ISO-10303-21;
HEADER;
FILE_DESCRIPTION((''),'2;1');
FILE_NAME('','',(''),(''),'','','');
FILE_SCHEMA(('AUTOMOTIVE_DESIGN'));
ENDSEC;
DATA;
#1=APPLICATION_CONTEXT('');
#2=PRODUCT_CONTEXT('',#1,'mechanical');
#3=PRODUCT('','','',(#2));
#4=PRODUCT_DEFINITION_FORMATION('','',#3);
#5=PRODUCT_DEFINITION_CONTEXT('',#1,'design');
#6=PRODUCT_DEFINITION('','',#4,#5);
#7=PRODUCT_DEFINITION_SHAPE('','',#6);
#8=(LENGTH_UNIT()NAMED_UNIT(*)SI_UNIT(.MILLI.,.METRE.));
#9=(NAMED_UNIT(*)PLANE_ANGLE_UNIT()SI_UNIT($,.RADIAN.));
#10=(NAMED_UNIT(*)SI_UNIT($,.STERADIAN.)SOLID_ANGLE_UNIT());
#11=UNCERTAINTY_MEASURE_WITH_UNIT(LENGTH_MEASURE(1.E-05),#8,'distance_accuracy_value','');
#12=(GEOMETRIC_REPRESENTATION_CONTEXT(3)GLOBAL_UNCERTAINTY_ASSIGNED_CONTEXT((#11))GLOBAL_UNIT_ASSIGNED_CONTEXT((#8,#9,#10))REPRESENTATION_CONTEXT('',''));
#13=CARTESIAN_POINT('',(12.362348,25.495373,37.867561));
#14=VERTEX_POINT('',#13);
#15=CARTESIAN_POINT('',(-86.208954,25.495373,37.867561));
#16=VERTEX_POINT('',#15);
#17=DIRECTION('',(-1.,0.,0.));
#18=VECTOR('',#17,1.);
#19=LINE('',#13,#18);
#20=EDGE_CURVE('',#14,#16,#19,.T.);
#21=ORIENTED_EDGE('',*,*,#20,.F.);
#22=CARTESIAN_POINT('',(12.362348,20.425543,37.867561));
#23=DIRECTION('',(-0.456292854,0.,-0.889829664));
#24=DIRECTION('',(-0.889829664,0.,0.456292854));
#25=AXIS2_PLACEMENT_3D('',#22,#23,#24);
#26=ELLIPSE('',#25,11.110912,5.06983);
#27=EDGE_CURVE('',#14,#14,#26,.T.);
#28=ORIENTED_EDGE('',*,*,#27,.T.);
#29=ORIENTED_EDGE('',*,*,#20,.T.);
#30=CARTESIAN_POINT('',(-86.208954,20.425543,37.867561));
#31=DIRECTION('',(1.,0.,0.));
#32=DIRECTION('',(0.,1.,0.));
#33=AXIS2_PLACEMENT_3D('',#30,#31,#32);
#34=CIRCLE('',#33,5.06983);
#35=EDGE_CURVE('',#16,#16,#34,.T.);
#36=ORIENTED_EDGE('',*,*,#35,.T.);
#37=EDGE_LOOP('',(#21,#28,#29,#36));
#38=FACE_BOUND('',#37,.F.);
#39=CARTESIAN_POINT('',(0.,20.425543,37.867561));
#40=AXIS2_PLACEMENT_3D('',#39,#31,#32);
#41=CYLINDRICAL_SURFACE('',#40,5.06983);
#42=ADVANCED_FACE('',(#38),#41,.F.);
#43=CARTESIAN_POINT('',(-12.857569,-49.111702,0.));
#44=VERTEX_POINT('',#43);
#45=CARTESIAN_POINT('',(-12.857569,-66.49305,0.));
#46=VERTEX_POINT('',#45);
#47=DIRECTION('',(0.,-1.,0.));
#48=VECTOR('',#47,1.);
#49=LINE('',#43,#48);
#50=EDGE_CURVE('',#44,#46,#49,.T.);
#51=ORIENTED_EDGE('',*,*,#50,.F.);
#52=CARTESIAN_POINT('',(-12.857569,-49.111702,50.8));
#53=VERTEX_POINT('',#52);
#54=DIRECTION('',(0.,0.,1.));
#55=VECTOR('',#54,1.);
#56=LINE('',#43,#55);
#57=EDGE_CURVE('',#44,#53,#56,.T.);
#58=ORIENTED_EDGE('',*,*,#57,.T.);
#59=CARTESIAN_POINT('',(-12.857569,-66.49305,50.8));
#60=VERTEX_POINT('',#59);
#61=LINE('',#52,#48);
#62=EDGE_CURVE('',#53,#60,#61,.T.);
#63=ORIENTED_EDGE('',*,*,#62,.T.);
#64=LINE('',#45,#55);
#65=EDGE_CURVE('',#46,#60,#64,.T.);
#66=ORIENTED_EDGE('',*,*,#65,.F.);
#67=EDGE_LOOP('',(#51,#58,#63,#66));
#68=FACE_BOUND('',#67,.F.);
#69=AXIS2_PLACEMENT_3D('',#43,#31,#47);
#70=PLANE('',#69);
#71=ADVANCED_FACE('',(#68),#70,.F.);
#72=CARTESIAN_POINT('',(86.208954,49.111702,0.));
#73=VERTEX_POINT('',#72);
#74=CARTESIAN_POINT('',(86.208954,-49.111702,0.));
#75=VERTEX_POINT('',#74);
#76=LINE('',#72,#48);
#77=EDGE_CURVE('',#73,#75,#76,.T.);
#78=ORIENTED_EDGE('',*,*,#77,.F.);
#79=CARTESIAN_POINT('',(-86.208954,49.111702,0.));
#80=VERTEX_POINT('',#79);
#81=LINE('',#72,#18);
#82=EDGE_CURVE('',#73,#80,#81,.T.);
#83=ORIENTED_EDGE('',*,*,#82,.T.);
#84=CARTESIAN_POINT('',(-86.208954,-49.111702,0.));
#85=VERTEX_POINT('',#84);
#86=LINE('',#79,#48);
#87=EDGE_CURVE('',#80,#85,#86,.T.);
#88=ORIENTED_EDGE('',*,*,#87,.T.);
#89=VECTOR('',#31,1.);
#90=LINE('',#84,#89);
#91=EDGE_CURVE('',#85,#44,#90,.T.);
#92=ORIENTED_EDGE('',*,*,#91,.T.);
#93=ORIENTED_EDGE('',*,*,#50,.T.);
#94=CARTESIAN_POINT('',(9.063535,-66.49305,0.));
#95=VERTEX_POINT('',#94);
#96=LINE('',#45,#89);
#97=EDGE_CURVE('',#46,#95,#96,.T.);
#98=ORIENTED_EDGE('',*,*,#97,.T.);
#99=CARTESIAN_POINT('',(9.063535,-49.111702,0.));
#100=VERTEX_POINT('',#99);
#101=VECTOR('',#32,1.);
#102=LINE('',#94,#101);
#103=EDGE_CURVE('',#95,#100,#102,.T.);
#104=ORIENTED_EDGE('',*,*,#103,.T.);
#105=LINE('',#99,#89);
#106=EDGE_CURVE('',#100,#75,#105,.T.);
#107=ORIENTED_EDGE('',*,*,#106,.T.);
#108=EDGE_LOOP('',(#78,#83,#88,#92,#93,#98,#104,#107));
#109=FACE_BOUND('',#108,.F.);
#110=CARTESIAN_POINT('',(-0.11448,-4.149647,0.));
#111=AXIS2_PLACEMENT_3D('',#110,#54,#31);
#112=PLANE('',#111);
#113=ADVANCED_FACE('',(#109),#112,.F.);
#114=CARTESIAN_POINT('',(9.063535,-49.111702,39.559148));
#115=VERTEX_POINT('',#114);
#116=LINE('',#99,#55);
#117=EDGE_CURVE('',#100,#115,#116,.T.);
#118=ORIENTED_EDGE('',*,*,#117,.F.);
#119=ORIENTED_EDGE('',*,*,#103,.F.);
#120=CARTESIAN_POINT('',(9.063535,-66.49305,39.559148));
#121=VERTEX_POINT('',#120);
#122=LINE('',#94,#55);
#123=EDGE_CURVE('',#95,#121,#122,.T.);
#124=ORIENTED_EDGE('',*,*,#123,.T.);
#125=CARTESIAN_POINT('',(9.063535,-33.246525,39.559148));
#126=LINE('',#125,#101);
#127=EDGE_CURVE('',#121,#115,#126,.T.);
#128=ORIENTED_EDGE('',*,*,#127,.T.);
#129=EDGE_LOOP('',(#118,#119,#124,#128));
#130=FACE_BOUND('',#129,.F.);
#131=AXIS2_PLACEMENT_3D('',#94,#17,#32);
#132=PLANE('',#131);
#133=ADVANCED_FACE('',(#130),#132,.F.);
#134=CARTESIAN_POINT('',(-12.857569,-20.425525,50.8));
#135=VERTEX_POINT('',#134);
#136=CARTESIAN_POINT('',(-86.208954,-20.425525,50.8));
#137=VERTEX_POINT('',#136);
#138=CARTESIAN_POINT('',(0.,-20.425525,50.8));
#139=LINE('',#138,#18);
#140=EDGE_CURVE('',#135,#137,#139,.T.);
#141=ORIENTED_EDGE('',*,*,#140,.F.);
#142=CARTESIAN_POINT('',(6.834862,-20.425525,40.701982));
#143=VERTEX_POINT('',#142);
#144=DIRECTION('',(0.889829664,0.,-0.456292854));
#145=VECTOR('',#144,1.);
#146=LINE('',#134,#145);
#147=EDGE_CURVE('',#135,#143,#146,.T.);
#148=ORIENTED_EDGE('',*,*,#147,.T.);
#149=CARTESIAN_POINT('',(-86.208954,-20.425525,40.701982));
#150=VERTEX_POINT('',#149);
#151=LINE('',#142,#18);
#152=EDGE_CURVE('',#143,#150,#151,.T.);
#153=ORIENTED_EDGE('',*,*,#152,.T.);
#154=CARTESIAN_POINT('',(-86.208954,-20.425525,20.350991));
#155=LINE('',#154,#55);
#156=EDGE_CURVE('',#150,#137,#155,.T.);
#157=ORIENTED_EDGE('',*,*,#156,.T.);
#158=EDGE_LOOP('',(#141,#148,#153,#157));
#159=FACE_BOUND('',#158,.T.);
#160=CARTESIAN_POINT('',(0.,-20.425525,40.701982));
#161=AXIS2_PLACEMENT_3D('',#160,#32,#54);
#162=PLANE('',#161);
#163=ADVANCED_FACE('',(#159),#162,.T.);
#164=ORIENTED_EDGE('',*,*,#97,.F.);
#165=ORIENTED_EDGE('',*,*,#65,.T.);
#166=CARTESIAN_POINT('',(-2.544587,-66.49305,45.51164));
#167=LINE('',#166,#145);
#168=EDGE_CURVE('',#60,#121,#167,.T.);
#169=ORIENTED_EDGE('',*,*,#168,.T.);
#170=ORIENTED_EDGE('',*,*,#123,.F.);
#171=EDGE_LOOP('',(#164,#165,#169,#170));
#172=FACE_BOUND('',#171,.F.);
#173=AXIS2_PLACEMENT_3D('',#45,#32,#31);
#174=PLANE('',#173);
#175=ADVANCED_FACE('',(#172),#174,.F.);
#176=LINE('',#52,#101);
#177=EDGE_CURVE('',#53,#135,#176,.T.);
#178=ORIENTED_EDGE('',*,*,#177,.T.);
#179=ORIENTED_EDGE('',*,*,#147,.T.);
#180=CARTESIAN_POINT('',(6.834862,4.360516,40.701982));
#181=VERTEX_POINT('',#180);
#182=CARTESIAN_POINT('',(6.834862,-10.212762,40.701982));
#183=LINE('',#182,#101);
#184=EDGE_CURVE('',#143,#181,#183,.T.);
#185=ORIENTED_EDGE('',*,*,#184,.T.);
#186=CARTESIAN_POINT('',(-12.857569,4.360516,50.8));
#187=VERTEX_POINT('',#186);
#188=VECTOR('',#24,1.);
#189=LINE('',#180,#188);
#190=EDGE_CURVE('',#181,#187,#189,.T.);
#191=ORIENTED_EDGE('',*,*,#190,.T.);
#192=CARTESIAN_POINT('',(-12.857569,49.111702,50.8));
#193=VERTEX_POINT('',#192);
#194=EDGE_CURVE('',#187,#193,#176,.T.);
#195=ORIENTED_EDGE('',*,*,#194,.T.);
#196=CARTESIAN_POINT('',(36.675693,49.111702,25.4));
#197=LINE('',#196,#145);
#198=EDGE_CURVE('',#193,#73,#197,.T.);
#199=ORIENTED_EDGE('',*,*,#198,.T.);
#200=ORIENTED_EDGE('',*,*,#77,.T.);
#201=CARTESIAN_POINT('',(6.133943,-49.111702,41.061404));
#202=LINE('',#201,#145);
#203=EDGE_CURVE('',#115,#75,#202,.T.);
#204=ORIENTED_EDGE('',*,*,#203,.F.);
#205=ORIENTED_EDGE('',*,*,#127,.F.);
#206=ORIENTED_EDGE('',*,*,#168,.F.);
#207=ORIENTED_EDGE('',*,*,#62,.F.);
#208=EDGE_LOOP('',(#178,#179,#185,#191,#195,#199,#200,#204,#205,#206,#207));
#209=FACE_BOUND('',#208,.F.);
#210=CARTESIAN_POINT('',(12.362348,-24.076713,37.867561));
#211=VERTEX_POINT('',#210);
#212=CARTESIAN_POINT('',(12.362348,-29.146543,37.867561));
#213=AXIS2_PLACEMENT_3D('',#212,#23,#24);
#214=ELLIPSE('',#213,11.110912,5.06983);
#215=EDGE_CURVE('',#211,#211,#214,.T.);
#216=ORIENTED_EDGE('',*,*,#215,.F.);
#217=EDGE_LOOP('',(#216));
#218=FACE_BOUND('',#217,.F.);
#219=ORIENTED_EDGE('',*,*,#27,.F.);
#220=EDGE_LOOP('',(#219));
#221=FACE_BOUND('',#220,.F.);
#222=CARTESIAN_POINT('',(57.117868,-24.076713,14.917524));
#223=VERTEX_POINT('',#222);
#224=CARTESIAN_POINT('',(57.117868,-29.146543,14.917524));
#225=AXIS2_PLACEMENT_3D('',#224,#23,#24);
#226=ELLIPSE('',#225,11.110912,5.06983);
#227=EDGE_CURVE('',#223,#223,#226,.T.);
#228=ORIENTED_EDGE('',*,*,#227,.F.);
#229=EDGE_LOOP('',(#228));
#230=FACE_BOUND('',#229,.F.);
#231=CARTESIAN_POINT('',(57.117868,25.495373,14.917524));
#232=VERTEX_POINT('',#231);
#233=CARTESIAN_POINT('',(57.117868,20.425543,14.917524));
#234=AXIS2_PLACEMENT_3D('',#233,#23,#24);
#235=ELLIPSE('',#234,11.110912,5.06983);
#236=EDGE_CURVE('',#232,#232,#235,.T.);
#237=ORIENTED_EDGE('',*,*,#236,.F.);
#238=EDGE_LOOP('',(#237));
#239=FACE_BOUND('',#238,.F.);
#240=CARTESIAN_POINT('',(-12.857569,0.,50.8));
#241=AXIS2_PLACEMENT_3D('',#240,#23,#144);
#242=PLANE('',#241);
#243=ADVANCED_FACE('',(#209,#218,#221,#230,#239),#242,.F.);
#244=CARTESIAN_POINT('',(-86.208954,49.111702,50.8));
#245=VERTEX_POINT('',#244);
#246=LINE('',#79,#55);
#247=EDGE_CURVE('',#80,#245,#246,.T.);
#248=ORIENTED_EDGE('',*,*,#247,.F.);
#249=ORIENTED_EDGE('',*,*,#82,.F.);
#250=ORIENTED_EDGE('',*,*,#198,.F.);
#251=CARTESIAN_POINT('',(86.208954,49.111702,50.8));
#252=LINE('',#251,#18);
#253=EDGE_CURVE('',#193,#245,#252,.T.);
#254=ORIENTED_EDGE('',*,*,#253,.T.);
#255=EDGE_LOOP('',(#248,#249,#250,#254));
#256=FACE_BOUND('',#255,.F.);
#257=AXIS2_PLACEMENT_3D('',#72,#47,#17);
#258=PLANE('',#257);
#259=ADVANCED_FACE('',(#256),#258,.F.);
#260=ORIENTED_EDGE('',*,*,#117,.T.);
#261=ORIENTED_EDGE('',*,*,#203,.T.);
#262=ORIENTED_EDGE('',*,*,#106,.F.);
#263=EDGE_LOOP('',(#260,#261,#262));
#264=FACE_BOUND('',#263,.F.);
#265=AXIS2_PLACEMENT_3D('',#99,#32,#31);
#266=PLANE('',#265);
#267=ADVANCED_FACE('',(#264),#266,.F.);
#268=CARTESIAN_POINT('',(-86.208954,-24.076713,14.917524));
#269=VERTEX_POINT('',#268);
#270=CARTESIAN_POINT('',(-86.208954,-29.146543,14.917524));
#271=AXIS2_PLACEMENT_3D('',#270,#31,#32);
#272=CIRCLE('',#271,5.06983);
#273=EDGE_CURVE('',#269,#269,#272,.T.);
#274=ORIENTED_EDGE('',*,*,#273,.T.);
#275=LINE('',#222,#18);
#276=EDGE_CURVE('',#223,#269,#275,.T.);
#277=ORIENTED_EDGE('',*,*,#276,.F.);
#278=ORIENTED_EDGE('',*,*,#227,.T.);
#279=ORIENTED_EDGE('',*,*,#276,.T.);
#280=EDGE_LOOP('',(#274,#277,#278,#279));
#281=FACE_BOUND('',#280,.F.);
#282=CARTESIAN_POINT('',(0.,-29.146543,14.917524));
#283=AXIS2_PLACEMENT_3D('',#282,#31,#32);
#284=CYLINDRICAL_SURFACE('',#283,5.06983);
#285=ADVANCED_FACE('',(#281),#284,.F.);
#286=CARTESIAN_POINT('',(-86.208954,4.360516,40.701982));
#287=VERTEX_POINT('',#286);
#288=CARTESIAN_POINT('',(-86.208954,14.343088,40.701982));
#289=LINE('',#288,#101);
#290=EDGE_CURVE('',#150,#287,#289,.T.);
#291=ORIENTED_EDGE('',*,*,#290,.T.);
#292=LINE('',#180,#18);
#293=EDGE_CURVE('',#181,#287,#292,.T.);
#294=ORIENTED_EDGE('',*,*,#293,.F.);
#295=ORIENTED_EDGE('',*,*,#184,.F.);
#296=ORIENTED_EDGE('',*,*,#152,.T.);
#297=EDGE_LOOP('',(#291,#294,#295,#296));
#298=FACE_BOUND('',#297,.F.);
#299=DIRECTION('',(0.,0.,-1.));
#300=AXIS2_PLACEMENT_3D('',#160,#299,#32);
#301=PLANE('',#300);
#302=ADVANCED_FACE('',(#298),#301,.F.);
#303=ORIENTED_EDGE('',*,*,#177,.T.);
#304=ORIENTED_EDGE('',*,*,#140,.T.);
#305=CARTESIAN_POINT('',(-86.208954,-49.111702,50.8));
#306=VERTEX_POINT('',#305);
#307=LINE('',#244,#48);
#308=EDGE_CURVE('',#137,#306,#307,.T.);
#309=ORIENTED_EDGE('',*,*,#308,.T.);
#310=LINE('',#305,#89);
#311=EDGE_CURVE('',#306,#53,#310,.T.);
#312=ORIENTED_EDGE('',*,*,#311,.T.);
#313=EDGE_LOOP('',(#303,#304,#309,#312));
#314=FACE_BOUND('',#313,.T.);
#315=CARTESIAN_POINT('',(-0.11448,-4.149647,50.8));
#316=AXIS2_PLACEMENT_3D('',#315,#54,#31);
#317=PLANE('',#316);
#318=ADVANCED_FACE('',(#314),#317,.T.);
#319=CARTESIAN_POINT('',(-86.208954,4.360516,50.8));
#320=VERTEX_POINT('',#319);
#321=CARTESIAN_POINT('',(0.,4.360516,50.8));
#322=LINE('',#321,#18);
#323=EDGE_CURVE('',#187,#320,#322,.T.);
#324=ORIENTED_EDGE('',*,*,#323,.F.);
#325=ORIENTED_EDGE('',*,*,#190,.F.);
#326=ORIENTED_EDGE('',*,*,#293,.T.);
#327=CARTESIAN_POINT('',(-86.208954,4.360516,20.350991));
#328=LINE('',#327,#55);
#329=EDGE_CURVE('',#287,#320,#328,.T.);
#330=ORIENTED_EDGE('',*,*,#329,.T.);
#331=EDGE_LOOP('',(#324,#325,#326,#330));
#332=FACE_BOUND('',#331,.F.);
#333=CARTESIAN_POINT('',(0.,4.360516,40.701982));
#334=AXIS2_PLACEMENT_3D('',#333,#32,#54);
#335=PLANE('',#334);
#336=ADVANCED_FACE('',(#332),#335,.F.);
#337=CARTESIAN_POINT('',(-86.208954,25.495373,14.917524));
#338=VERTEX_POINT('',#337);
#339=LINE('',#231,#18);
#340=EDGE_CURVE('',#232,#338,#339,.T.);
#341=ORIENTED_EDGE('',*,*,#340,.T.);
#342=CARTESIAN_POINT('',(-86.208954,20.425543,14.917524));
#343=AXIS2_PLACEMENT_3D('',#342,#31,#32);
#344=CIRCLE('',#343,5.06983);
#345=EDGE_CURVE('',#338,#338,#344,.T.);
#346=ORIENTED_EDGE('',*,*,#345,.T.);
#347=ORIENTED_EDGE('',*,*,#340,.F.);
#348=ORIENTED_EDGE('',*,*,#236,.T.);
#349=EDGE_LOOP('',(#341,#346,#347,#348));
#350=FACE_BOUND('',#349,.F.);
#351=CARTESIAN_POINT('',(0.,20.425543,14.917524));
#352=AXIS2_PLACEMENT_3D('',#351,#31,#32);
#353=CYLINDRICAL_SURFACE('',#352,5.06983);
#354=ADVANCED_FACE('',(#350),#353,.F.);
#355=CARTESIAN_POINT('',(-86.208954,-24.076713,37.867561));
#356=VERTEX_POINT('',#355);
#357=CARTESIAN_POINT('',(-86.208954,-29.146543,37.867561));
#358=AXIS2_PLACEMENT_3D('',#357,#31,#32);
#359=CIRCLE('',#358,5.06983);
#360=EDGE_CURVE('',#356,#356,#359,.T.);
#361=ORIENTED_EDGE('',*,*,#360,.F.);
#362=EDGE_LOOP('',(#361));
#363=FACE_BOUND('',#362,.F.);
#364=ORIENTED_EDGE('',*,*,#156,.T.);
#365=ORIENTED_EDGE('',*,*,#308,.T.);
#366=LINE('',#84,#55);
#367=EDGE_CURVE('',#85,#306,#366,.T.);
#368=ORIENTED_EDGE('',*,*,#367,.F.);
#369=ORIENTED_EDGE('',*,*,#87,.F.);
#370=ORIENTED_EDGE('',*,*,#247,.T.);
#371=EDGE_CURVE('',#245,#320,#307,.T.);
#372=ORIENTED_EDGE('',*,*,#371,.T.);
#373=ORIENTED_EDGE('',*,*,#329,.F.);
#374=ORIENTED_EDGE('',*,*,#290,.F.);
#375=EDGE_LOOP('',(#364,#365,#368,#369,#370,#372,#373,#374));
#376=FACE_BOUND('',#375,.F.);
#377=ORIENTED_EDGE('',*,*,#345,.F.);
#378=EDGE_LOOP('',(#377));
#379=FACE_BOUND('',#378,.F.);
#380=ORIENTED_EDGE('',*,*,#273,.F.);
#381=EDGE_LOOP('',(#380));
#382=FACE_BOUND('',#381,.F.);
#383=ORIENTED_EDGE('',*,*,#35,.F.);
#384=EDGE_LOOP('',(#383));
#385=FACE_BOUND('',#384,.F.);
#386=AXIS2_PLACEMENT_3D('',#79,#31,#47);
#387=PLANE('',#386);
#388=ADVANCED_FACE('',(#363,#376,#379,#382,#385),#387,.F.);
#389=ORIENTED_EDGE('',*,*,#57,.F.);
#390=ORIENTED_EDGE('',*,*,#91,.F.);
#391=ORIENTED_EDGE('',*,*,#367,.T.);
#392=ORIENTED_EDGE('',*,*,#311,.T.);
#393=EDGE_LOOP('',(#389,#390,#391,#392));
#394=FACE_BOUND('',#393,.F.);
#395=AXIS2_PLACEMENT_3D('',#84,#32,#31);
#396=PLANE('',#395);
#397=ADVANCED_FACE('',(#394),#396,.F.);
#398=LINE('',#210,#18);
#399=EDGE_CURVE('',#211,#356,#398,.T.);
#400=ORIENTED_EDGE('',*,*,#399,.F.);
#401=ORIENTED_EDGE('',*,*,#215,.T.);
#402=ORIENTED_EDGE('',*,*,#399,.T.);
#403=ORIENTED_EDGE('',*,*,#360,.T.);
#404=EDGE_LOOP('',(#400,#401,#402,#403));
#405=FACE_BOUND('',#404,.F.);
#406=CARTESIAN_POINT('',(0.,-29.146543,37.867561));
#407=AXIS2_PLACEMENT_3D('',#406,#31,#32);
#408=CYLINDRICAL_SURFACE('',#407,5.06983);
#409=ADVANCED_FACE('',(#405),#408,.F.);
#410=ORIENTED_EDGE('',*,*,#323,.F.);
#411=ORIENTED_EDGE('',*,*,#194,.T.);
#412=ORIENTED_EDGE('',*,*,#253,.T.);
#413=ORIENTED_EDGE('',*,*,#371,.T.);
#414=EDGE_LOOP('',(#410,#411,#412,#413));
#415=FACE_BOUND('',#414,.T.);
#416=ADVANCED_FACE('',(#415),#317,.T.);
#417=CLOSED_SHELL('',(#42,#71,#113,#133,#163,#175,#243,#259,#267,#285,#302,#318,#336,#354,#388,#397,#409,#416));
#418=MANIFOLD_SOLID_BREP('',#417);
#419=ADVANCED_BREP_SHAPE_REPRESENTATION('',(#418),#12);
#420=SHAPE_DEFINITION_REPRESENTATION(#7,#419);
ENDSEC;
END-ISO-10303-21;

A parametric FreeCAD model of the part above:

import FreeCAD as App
import Part
import Sketcher
from FreeCAD import Vector
Q = App.Units.Quantity


def add_polygon(sketch, points):
    """Adds a closed chain of lines whose ends are joined by coincident constraints."""
    first, n = sketch.GeometryCount, len(points)
    for a, b in zip(points, points[1:] + points[:1]):
        sketch.addGeometry(Part.LineSegment(App.Vector(*a, 0), App.Vector(*b, 0)), False)
    for i in range(n):
        sketch.addConstraint(Sketcher.Constraint("Coincident", first + i, 2, first + (i + 1) % n, 1))

doc = App.newDocument("Part")
body = doc.addObject("PartDesign::Body", "Body")

# Sketch on XY plane
sketch1 = doc.addObject("Sketcher::SketchObject", "Sketch")
body.addObject(sketch1)
sketch1.AttachmentSupport = (doc.XY_Plane, [""])
sketch1.MapMode = "FlatFace"
add_polygon(sketch1, [(-86, 49), (-86, -49), (-13, -49), (-13, -66), (9, -66), (9, -49), (86, -49), (86, 49)])  # lines 0-7
sketch1.addConstraint([
    Sketcher.Constraint("Vertical", 0),
    Sketcher.Constraint("Horizontal", 1),
    Sketcher.Constraint("Vertical", 2),
    Sketcher.Constraint("Horizontal", 3),
    Sketcher.Constraint("Vertical", 4),
    Sketcher.Constraint("Horizontal", 5),
    Sketcher.Constraint("Vertical", 6),
    Sketcher.Constraint("Horizontal", 7),
    Sketcher.Constraint("Symmetric", 0, 2, 6, 2, -1, 1),
    Sketcher.Constraint("Horizontal", 1, 2, 4, 2),
    Sketcher.Constraint("DistanceX", 5, 1, 5, 2, Q("77.145419 mm")),
    Sketcher.Constraint("DistanceX", 7, 2, 7, 1, Q("172.417909 mm")),
    Sketcher.Constraint("DistanceY", 2, 2, 2, 1, Q("17.381349 mm")),
    Sketcher.Constraint("DistanceY", 0, 2, -1, 1, Q("49.111702 mm")),
    Sketcher.Constraint("DistanceX", 1, 1, 1, 2, Q("73.351385 mm")),
])
pad1 = doc.addObject("PartDesign::Pad", "Pad")
body.addObject(pad1)
pad1.Profile = sketch1
pad1.Length = Q("2 in")

# Sketch on XZ plane
sketch2 = doc.addObject("Sketcher::SketchObject", "Sketch001")
body.addObject(sketch2)
sketch2.AttachmentSupport = (doc.XZ_Plane, [""])
sketch2.MapMode = "FlatFace"
add_polygon(sketch2, [(-13, 51), (86, 0), (86, 51)])  # lines 0-2
sketch2.addConstraint([
    Sketcher.Constraint("Vertical", 1),
    Sketcher.Constraint("Horizontal", 2),
    Sketcher.Constraint("PointOnObject", 0, 2, -1),
    Sketcher.Constraint("DistanceY", 1, 1, 1, 2, Q("2 in")),
    Sketcher.Constraint("Distance", 0, Q("111.332009 mm")),
    Sketcher.Constraint("DistanceX", 2, 2, -1, 1, Q("12.857569 mm")),
])
pocket1 = doc.addObject("PartDesign::Pocket", "Pocket")
body.addObject(pocket1)
pocket1.Profile = sketch2
pocket1.Type = "ThroughAll"
pocket1.Midplane = True

# Sketch on YZ plane
sketch3 = doc.addObject("Sketcher::SketchObject", "Sketch002")
body.addObject(sketch3)
sketch3.AttachmentSupport = (doc.YZ_Plane, [""])
sketch3.MapMode = "FlatFace"
sketch3.addGeometry(Part.Circle(Vector(-29, 38, 0), Vector(0, 0, 1), 5), False)  # 0
sketch3.addGeometry(Part.Circle(Vector(-29, 15, 0), Vector(0, 0, 1), 5), False)  # 1
sketch3.addGeometry(Part.Circle(Vector(20, 15, 0), Vector(0, 0, 1), 5), False)  # 2
sketch3.addGeometry(Part.Circle(Vector(20, 38, 0), Vector(0, 0, 1), 5), False)  # 3
add_polygon(sketch3, [(-20, 51), (-20, 41), (4, 41), (4, 51)])  # lines 4-7
sketch3.addConstraint([
    Sketcher.Constraint("Vertical", 4),
    Sketcher.Constraint("Horizontal", 5),
    Sketcher.Constraint("Vertical", 6),
    Sketcher.Constraint("Horizontal", 7),
    Sketcher.Constraint("Equal", 0, 1),
    Sketcher.Constraint("Equal", 1, 2),
    Sketcher.Constraint("Equal", 2, 3),
    Sketcher.Constraint("Horizontal", 1, 3, 2, 3),
    Sketcher.Constraint("Horizontal", 0, 3, 3, 3),
    Sketcher.Constraint("Vertical", 0, 3, 1, 3),
    Sketcher.Constraint("Vertical", 2, 3, 3, 3),
    Sketcher.Constraint("DistanceY", -1, 1, 6, 2, Q("2 in")),
    Sketcher.Constraint("Diameter", 0, Q("10.13966 mm")),
    Sketcher.Constraint("DistanceX", 5, 1, 5, 2, Q("24.78604 mm")),
    Sketcher.Constraint("DistanceY", 4, 2, 4, 1, Q("10.098018 mm")),
    Sketcher.Constraint("DistanceY", -1, 1, 0, 3, Q("37.867561 mm")),
    Sketcher.Constraint("DistanceX", 0, 3, 4, 2, Q("8.721018 mm")),
    Sketcher.Constraint("DistanceY", 1, 3, 4, 2, Q("25.784459 mm")),
    Sketcher.Constraint("DistanceX", 0, 3, -1, 1, Q("29.146543 mm")),
    Sketcher.Constraint("DistanceX", -1, 1, 2, 3, Q("20.425543 mm")),
])
pocket2 = doc.addObject("PartDesign::Pocket", "Pocket001")
body.addObject(pocket2)
pocket2.Profile = sketch3
pocket2.Type = "ThroughAll"
pocket2.Midplane = True

doc.recompute()
